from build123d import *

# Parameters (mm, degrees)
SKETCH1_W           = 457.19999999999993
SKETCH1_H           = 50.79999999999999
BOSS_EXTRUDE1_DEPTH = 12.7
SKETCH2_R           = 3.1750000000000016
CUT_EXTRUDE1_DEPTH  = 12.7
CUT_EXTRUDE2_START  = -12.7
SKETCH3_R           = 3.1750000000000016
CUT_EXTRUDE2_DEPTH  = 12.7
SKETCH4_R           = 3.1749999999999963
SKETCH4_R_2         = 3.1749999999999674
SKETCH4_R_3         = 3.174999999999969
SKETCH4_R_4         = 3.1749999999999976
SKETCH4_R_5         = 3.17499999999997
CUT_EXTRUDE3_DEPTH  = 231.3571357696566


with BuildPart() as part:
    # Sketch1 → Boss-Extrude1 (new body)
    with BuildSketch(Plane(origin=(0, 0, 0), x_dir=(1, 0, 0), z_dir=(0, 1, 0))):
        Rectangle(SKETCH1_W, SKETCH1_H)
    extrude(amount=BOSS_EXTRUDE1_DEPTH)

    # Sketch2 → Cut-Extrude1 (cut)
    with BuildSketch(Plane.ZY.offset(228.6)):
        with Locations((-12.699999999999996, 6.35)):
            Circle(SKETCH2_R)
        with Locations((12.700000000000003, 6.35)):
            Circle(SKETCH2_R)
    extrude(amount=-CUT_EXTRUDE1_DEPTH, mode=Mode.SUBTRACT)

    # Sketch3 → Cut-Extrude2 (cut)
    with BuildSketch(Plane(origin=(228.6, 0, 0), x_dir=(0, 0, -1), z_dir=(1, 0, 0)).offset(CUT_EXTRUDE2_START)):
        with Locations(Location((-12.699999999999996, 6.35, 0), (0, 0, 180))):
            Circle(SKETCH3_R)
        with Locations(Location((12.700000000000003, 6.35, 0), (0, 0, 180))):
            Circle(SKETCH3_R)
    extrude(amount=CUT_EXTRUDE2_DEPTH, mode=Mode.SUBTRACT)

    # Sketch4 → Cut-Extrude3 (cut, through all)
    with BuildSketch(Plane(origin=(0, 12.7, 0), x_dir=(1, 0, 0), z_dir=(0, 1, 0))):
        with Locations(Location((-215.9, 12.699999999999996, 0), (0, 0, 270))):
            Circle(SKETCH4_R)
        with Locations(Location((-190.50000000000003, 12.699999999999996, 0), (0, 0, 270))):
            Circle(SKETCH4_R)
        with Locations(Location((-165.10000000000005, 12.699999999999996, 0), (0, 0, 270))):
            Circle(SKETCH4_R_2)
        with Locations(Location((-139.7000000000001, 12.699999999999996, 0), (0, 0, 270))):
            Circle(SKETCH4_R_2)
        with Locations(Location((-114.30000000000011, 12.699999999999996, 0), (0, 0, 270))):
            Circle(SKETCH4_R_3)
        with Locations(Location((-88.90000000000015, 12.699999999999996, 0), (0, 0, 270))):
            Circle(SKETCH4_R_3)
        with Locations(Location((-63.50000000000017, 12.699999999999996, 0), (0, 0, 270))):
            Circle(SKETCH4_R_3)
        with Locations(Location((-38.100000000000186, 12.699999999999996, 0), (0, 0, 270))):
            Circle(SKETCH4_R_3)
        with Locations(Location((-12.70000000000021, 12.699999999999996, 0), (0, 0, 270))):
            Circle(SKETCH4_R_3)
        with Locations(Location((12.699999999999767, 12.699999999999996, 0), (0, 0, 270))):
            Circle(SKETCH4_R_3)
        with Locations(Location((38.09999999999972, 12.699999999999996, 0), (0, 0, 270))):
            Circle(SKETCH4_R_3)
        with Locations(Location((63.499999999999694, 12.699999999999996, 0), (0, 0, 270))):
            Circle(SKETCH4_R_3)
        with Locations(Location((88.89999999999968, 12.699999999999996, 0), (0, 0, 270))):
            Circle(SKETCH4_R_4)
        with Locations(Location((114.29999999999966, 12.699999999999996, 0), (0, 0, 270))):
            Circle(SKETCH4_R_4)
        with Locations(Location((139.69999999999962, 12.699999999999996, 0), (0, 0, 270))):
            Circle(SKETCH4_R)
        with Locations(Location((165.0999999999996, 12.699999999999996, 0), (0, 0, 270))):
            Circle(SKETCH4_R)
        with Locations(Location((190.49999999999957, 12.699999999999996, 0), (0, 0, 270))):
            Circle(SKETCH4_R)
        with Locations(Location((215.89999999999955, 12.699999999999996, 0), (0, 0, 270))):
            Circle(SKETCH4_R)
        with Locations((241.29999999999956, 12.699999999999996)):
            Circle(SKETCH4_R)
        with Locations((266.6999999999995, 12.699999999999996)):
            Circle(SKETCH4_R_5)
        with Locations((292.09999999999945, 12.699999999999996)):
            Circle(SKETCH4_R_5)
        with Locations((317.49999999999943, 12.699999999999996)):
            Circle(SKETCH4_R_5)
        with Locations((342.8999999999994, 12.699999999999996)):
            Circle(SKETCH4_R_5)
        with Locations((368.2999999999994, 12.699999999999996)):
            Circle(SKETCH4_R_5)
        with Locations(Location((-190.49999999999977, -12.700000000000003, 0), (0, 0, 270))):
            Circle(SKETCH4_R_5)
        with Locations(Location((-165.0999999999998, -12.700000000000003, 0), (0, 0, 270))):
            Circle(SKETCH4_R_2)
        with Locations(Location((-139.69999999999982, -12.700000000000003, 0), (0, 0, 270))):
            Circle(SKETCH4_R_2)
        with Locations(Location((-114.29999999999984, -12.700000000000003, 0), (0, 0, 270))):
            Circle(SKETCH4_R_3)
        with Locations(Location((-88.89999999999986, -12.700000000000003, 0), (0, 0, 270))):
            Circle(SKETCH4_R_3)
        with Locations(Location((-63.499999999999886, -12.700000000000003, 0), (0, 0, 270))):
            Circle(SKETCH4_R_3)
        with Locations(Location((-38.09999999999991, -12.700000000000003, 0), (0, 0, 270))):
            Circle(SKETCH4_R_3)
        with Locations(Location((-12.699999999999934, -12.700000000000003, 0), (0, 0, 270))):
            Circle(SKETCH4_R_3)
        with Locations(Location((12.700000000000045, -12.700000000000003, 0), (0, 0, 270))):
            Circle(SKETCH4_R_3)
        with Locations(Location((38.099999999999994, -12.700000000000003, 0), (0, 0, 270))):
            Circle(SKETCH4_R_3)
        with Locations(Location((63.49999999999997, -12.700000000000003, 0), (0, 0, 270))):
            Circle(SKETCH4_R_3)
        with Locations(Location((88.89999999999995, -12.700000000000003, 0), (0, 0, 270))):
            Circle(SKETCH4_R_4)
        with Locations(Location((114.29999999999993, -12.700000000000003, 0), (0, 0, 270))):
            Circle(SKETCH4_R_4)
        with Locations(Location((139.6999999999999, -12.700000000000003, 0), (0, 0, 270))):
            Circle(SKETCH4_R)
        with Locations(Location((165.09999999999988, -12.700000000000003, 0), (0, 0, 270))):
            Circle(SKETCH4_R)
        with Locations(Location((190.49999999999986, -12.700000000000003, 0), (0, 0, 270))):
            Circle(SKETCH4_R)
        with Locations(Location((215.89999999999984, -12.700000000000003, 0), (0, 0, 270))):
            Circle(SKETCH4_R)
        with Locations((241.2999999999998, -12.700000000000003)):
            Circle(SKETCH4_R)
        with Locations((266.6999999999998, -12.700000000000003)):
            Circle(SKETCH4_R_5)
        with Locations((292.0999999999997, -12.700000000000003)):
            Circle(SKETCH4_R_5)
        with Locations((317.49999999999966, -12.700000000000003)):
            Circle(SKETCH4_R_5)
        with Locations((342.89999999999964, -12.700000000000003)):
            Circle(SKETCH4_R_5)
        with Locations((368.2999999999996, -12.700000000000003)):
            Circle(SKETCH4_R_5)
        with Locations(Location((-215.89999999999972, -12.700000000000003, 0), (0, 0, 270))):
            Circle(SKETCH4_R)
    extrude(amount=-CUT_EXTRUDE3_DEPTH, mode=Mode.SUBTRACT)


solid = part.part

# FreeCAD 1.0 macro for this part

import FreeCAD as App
import Part
import Sketcher
Q = App.Units.Quantity


def add_polygon(sketch, points):
    """Adds a closed chain of lines whose ends are joined by coincident constraints."""
    first, n = sketch.GeometryCount, len(points)
    for a, b in zip(points, points[1:] + points[:1]):
        sketch.addGeometry(Part.LineSegment(App.Vector(*a, 0), App.Vector(*b, 0)), False)
    for i in range(n):
        sketch.addConstraint(Sketcher.Constraint("Coincident", first + i, 2, first + (i + 1) % n, 1))

doc = App.newDocument("Part")
body = doc.addObject("PartDesign::Body", "Body")

sketch1 = body.newObject("Sketcher::SketchObject", "Sketch")
sketch1.AttachmentSupport = (doc.getObject("XZ_Plane"), [""])
sketch1.MapMode = "FlatFace"
add_polygon(sketch1, [(-229, -25), (-229, 25), (229, 25), (229, -25)])
sketch1.addConstraint(Sketcher.Constraint("Vertical", 0))
sketch1.addConstraint(Sketcher.Constraint("Horizontal", 1))
sketch1.addConstraint(Sketcher.Constraint("Vertical", 2))
sketch1.addConstraint(Sketcher.Constraint("Horizontal", 3))
sketch1.addConstraint(Sketcher.Constraint("Symmetric", 0, 2, 2, 2, -1, 1))
sketch1.addConstraint(Sketcher.Constraint("DistanceX", 1, 1, 1, 2, Q("18 in")))
sketch1.addConstraint(Sketcher.Constraint("DistanceY", 0, 1, 0, 2, Q("2 in")))
pad1 = body.newObject("PartDesign::Pad", "Pad")
pad1.Profile = sketch1
pad1.Length = Q("0.5 in")
pad1.Reversed = True

sketch2 = body.newObject("Sketcher::SketchObject", "Sketch001")
sketch2.AttachmentSupport = (doc.getObject("YZ_Plane"), [""])
sketch2.MapMode = "FlatFace"
sketch2.AttachmentOffset = App.Placement(App.Vector(0, 0, -9 * 25.4), App.Rotation())
sketch2.addGeometry(Part.Circle(App.Vector(6.3, -12.7, 0), App.Vector(0, 0, 1), 3.2), False)
sketch2.addGeometry(Part.Circle(App.Vector(6.3, 12.7, 0), App.Vector(0, 0, 1), 3.2), False)
sketch2.addConstraint(Sketcher.Constraint("Equal", 0, 1))
sketch2.addConstraint(Sketcher.Constraint("Symmetric", 0, 3, 1, 3, -1))
sketch2.addConstraint(Sketcher.Constraint("Diameter", 0, Q("0.25 in")))
sketch2.addConstraint(Sketcher.Constraint("DistanceY", 0, 3, 1, 3, Q("1 in")))
sketch2.addConstraint(Sketcher.Constraint("DistanceX", -1, 1, 0, 3, Q("0.25 in")))
pocket1 = body.newObject("PartDesign::Pocket", "Pocket")
pocket1.Profile = sketch2
pocket1.Length = Q("0.5 in")
pocket1.Reversed = True

sketch3 = body.newObject("Sketcher::SketchObject", "Sketch002")
sketch3.AttachmentSupport = (doc.getObject("YZ_Plane"), [""])
sketch3.MapMode = "FlatFace"
sketch3.AttachmentOffset = App.Placement(App.Vector(0, 0, 8.5 * 25.4), App.Rotation())
sketch3.addGeometry(Part.Circle(App.Vector(6.3, 12.7, 0), App.Vector(0, 0, 1), 3.2), False)
sketch3.addGeometry(Part.Circle(App.Vector(6.3, -12.7, 0), App.Vector(0, 0, 1), 3.2), False)
sketch3.addConstraint(Sketcher.Constraint("Equal", 0, 1))
sketch3.addConstraint(Sketcher.Constraint("Symmetric", 0, 3, 1, 3, -1))
sketch3.addConstraint(Sketcher.Constraint("Diameter", 0, Q("0.25 in")))
sketch3.addConstraint(Sketcher.Constraint("DistanceY", 1, 3, 0, 3, Q("1 in")))
sketch3.addConstraint(Sketcher.Constraint("DistanceX", -1, 1, 0, 3, Q("0.25 in")))
pocket2 = body.newObject("PartDesign::Pocket", "Pocket001")
pocket2.Profile = sketch3
pocket2.Length = Q("0.5 in")
pocket2.Reversed = True

sketch4 = body.newObject("Sketcher::SketchObject", "Sketch003")
sketch4.AttachmentSupport = (doc.getObject("XZ_Plane"), [""])
sketch4.MapMode = "FlatFace"
sketch4.AttachmentOffset = App.Placement(App.Vector(0, 0, -0.5 * 25.4), App.Rotation())
sketch4.addGeometry(Part.Circle(App.Vector(-215.9, -12.7, 0), App.Vector(0, 0, 1), 3.2), False)
sketch4.addGeometry(Part.Circle(App.Vector(-190.5, -12.7, 0), App.Vector(0, 0, 1), 3.2), False)
sketch4.addGeometry(Part.Circle(App.Vector(-165.1, -12.7, 0), App.Vector(0, 0, 1), 3.2), False)
sketch4.addGeometry(Part.Circle(App.Vector(-139.7, -12.7, 0), App.Vector(0, 0, 1), 3.2), False)
sketch4.addGeometry(Part.Circle(App.Vector(-114.3, -12.7, 0), App.Vector(0, 0, 1), 3.2), False)
sketch4.addGeometry(Part.Circle(App.Vector(-88.9, -12.7, 0), App.Vector(0, 0, 1), 3.2), False)
sketch4.addGeometry(Part.Circle(App.Vector(-63.5, -12.7, 0), App.Vector(0, 0, 1), 3.2), False)
sketch4.addGeometry(Part.Circle(App.Vector(-38.1, -12.7, 0), App.Vector(0, 0, 1), 3.2), False)
sketch4.addGeometry(Part.Circle(App.Vector(-12.7, -12.7, 0), App.Vector(0, 0, 1), 3.2), False)
sketch4.addGeometry(Part.Circle(App.Vector(12.7, -12.7, 0), App.Vector(0, 0, 1), 3.2), False)
sketch4.addGeometry(Part.Circle(App.Vector(38.1, -12.7, 0), App.Vector(0, 0, 1), 3.2), False)
sketch4.addGeometry(Part.Circle(App.Vector(63.5, -12.7, 0), App.Vector(0, 0, 1), 3.2), False)
sketch4.addGeometry(Part.Circle(App.Vector(88.9, -12.7, 0), App.Vector(0, 0, 1), 3.2), False)
sketch4.addGeometry(Part.Circle(App.Vector(114.3, -12.7, 0), App.Vector(0, 0, 1), 3.2), False)
sketch4.addGeometry(Part.Circle(App.Vector(139.7, -12.7, 0), App.Vector(0, 0, 1), 3.2), False)
sketch4.addGeometry(Part.Circle(App.Vector(165.1, -12.7, 0), App.Vector(0, 0, 1), 3.2), False)
sketch4.addGeometry(Part.Circle(App.Vector(190.5, -12.7, 0), App.Vector(0, 0, 1), 3.2), False)
sketch4.addGeometry(Part.Circle(App.Vector(215.9, -12.7, 0), App.Vector(0, 0, 1), 3.2), False)
sketch4.addGeometry(Part.Circle(App.Vector(241.3, -12.7, 0), App.Vector(0, 0, 1), 3.2), False)
sketch4.addGeometry(Part.Circle(App.Vector(266.7, -12.7, 0), App.Vector(0, 0, 1), 3.2), False)
sketch4.addGeometry(Part.Circle(App.Vector(292.1, -12.7, 0), App.Vector(0, 0, 1), 3.2), False)
sketch4.addGeometry(Part.Circle(App.Vector(317.5, -12.7, 0), App.Vector(0, 0, 1), 3.2), False)
sketch4.addGeometry(Part.Circle(App.Vector(342.9, -12.7, 0), App.Vector(0, 0, 1), 3.2), False)
sketch4.addGeometry(Part.Circle(App.Vector(368.3, -12.7, 0), App.Vector(0, 0, 1), 3.2), False)
sketch4.addGeometry(Part.Circle(App.Vector(-190.5, 12.7, 0), App.Vector(0, 0, 1), 3.2), False)
sketch4.addGeometry(Part.Circle(App.Vector(-165.1, 12.7, 0), App.Vector(0, 0, 1), 3.2), False)
sketch4.addGeometry(Part.Circle(App.Vector(-139.7, 12.7, 0), App.Vector(0, 0, 1), 3.2), False)
sketch4.addGeometry(Part.Circle(App.Vector(-114.3, 12.7, 0), App.Vector(0, 0, 1), 3.2), False)
sketch4.addGeometry(Part.Circle(App.Vector(-88.9, 12.7, 0), App.Vector(0, 0, 1), 3.2), False)
sketch4.addGeometry(Part.Circle(App.Vector(-63.5, 12.7, 0), App.Vector(0, 0, 1), 3.2), False)
sketch4.addGeometry(Part.Circle(App.Vector(-38.1, 12.7, 0), App.Vector(0, 0, 1), 3.2), False)
sketch4.addGeometry(Part.Circle(App.Vector(-12.7, 12.7, 0), App.Vector(0, 0, 1), 3.2), False)
sketch4.addGeometry(Part.Circle(App.Vector(12.7, 12.7, 0), App.Vector(0, 0, 1), 3.2), False)
sketch4.addGeometry(Part.Circle(App.Vector(38.1, 12.7, 0), App.Vector(0, 0, 1), 3.2), False)
sketch4.addGeometry(Part.Circle(App.Vector(63.5, 12.7, 0), App.Vector(0, 0, 1), 3.2), False)
sketch4.addGeometry(Part.Circle(App.Vector(88.9, 12.7, 0), App.Vector(0, 0, 1), 3.2), False)
sketch4.addGeometry(Part.Circle(App.Vector(114.3, 12.7, 0), App.Vector(0, 0, 1), 3.2), False)
sketch4.addGeometry(Part.Circle(App.Vector(139.7, 12.7, 0), App.Vector(0, 0, 1), 3.2), False)
sketch4.addGeometry(Part.Circle(App.Vector(165.1, 12.7, 0), App.Vector(0, 0, 1), 3.2), False)
sketch4.addGeometry(Part.Circle(App.Vector(190.5, 12.7, 0), App.Vector(0, 0, 1), 3.2), False)
sketch4.addGeometry(Part.Circle(App.Vector(215.9, 12.7, 0), App.Vector(0, 0, 1), 3.2), False)
sketch4.addGeometry(Part.Circle(App.Vector(241.3, 12.7, 0), App.Vector(0, 0, 1), 3.2), False)
sketch4.addGeometry(Part.Circle(App.Vector(266.7, 12.7, 0), App.Vector(0, 0, 1), 3.2), False)
sketch4.addGeometry(Part.Circle(App.Vector(292.1, 12.7, 0), App.Vector(0, 0, 1), 3.2), False)
sketch4.addGeometry(Part.Circle(App.Vector(317.5, 12.7, 0), App.Vector(0, 0, 1), 3.2), False)
sketch4.addGeometry(Part.Circle(App.Vector(342.9, 12.7, 0), App.Vector(0, 0, 1), 3.2), False)
sketch4.addGeometry(Part.Circle(App.Vector(368.3, 12.7, 0), App.Vector(0, 0, 1), 3.2), False)
sketch4.addGeometry(Part.Circle(App.Vector(-215.9, 12.7, 0), App.Vector(0, 0, 1), 3.2), False)
sketch4.addConstraint(Sketcher.Constraint("Equal", 0, 1))
sketch4.addConstraint(Sketcher.Constraint("Equal", 1, 2))
sketch4.addConstraint(Sketcher.Constraint("Equal", 2, 3))
sketch4.addConstraint(Sketcher.Constraint("Equal", 3, 4))
sketch4.addConstraint(Sketcher.Constraint("Equal", 4, 5))
sketch4.addConstraint(Sketcher.Constraint("Equal", 5, 6))
sketch4.addConstraint(Sketcher.Constraint("Equal", 6, 7))
sketch4.addConstraint(Sketcher.Constraint("Equal", 7, 8))
sketch4.addConstraint(Sketcher.Constraint("Equal", 8, 9))
sketch4.addConstraint(Sketcher.Constraint("Equal", 9, 10))
sketch4.addConstraint(Sketcher.Constraint("Equal", 10, 11))
sketch4.addConstraint(Sketcher.Constraint("Equal", 11, 12))
sketch4.addConstraint(Sketcher.Constraint("Equal", 12, 13))
sketch4.addConstraint(Sketcher.Constraint("Equal", 13, 14))
sketch4.addConstraint(Sketcher.Constraint("Equal", 14, 15))
sketch4.addConstraint(Sketcher.Constraint("Equal", 15, 16))
sketch4.addConstraint(Sketcher.Constraint("Equal", 16, 17))
sketch4.addConstraint(Sketcher.Constraint("Equal", 17, 18))
sketch4.addConstraint(Sketcher.Constraint("Equal", 18, 19))
sketch4.addConstraint(Sketcher.Constraint("Equal", 19, 20))
sketch4.addConstraint(Sketcher.Constraint("Equal", 20, 21))
sketch4.addConstraint(Sketcher.Constraint("Equal", 21, 22))
sketch4.addConstraint(Sketcher.Constraint("Equal", 22, 23))
sketch4.addConstraint(Sketcher.Constraint("Equal", 23, 24))
sketch4.addConstraint(Sketcher.Constraint("Equal", 24, 25))
sketch4.addConstraint(Sketcher.Constraint("Equal", 25, 26))
sketch4.addConstraint(Sketcher.Constraint("Equal", 26, 27))
sketch4.addConstraint(Sketcher.Constraint("Equal", 27, 28))
sketch4.addConstraint(Sketcher.Constraint("Equal", 28, 29))
sketch4.addConstraint(Sketcher.Constraint("Equal", 29, 30))
sketch4.addConstraint(Sketcher.Constraint("Equal", 30, 31))
sketch4.addConstraint(Sketcher.Constraint("Equal", 31, 32))
sketch4.addConstraint(Sketcher.Constraint("Equal", 32, 33))
sketch4.addConstraint(Sketcher.Constraint("Equal", 33, 34))
sketch4.addConstraint(Sketcher.Constraint("Equal", 34, 35))
sketch4.addConstraint(Sketcher.Constraint("Equal", 35, 36))
sketch4.addConstraint(Sketcher.Constraint("Equal", 36, 37))
sketch4.addConstraint(Sketcher.Constraint("Equal", 37, 38))
sketch4.addConstraint(Sketcher.Constraint("Equal", 38, 39))
sketch4.addConstraint(Sketcher.Constraint("Equal", 39, 40))
sketch4.addConstraint(Sketcher.Constraint("Equal", 40, 41))
sketch4.addConstraint(Sketcher.Constraint("Equal", 41, 42))
sketch4.addConstraint(Sketcher.Constraint("Equal", 42, 43))
sketch4.addConstraint(Sketcher.Constraint("Equal", 43, 44))
sketch4.addConstraint(Sketcher.Constraint("Equal", 44, 45))
sketch4.addConstraint(Sketcher.Constraint("Equal", 45, 46))
sketch4.addConstraint(Sketcher.Constraint("Equal", 46, 47))
sketch4.addConstraint(Sketcher.Constraint("Symmetric", 16, 3, 24, 3, -1, 1))
sketch4.addConstraint(Sketcher.Constraint("Symmetric", 15, 3, 25, 3, -1, 1))
sketch4.addConstraint(Sketcher.Constraint("Symmetric", 14, 3, 26, 3, -1, 1))
sketch4.addConstraint(Sketcher.Constraint("Symmetric", 13, 3, 27, 3, -1, 1))
sketch4.addConstraint(Sketcher.Constraint("Symmetric", 12, 3, 28, 3, -1, 1))
sketch4.addConstraint(Sketcher.Constraint("Symmetric", 11, 3, 29, 3, -1, 1))
sketch4.addConstraint(Sketcher.Constraint("Symmetric", 10, 3, 30, 3, -1, 1))
sketch4.addConstraint(Sketcher.Constraint("Symmetric", 9, 3, 31, 3, -1, 1))
sketch4.addConstraint(Sketcher.Constraint("Symmetric", 8, 3, 32, 3, -1, 1))
sketch4.addConstraint(Sketcher.Constraint("Symmetric", 7, 3, 33, 3, -1, 1))
sketch4.addConstraint(Sketcher.Constraint("Symmetric", 6, 3, 34, 3, -1, 1))
sketch4.addConstraint(Sketcher.Constraint("Symmetric", 5, 3, 35, 3, -1, 1))
sketch4.addConstraint(Sketcher.Constraint("Symmetric", 4, 3, 36, 3, -1, 1))
sketch4.addConstraint(Sketcher.Constraint("Symmetric", 3, 3, 37, 3, -1, 1))
sketch4.addConstraint(Sketcher.Constraint("Symmetric", 2, 3, 38, 3, -1, 1))
sketch4.addConstraint(Sketcher.Constraint("Symmetric", 1, 3, 39, 3, -1, 1))
sketch4.addConstraint(Sketcher.Constraint("Symmetric", 0, 3, 40, 3, -1, 1))
sketch4.addConstraint(Sketcher.Constraint("Symmetric", 17, 3, 47, 3, -1, 1))
sketch4.addConstraint(Sketcher.Constraint("Symmetric", 8, 3, 9, 3, -2))
sketch4.addConstraint(Sketcher.Constraint("Symmetric", 7, 3, 10, 3, -2))
sketch4.addConstraint(Sketcher.Constraint("Symmetric", 6, 3, 11, 3, -2))
sketch4.addConstraint(Sketcher.Constraint("Symmetric", 5, 3, 12, 3, -2))
sketch4.addConstraint(Sketcher.Constraint("Symmetric", 4, 3, 13, 3, -2))
sketch4.addConstraint(Sketcher.Constraint("Symmetric", 3, 3, 14, 3, -2))
sketch4.addConstraint(Sketcher.Constraint("Symmetric", 2, 3, 15, 3, -2))
sketch4.addConstraint(Sketcher.Constraint("Symmetric", 1, 3, 16, 3, -2))
sketch4.addConstraint(Sketcher.Constraint("Symmetric", 0, 3, 17, 3, -2))
sketch4.addConstraint(Sketcher.Constraint("Symmetric", 18, 3, 41, 3, -1))
sketch4.addConstraint(Sketcher.Constraint("Symmetric", 19, 3, 42, 3, -1))
sketch4.addConstraint(Sketcher.Constraint("Symmetric", 20, 3, 43, 3, -1))
sketch4.addConstraint(Sketcher.Constraint("Symmetric", 21, 3, 44, 3, -1))
sketch4.addConstraint(Sketcher.Constraint("Symmetric", 22, 3, 45, 3, -1))
sketch4.addConstraint(Sketcher.Constraint("Symmetric", 23, 3, 46, 3, -1))
sketch4.addConstraint(Sketcher.Constraint("Horizontal", 0, 3, 1, 3))
sketch4.addConstraint(Sketcher.Constraint("Horizontal", 1, 3, 2, 3))
sketch4.addConstraint(Sketcher.Constraint("Horizontal", 2, 3, 3, 3))
sketch4.addConstraint(Sketcher.Constraint("Horizontal", 3, 3, 4, 3))
sketch4.addConstraint(Sketcher.Constraint("Horizontal", 4, 3, 5, 3))
sketch4.addConstraint(Sketcher.Constraint("Horizontal", 5, 3, 6, 3))
sketch4.addConstraint(Sketcher.Constraint("Horizontal", 6, 3, 7, 3))
sketch4.addConstraint(Sketcher.Constraint("Horizontal", 7, 3, 8, 3))
sketch4.addConstraint(Sketcher.Constraint("Horizontal", 17, 3, 18, 3))
sketch4.addConstraint(Sketcher.Constraint("Horizontal", 18, 3, 19, 3))
sketch4.addConstraint(Sketcher.Constraint("Horizontal", 19, 3, 20, 3))
sketch4.addConstraint(Sketcher.Constraint("Horizontal", 20, 3, 21, 3))
sketch4.addConstraint(Sketcher.Constraint("Horizontal", 21, 3, 22, 3))
sketch4.addConstraint(Sketcher.Constraint("Horizontal", 22, 3, 23, 3))
sketch4.addConstraint(Sketcher.Constraint("Diameter", 0, Q("0.25 in")))
sketch4.addConstraint(Sketcher.Constraint("DistanceX", 0, 3, 1, 3, Q("1 in")))
sketch4.addConstraint(Sketcher.Constraint("DistanceX", 1, 3, 2, 3, Q("1 in")))
sketch4.addConstraint(Sketcher.Constraint("DistanceX", 2, 3, 3, 3, Q("1 in")))
sketch4.addConstraint(Sketcher.Constraint("DistanceX", 3, 3, 4, 3, Q("1 in")))
sketch4.addConstraint(Sketcher.Constraint("DistanceX", 4, 3, 5, 3, Q("1 in")))
sketch4.addConstraint(Sketcher.Constraint("DistanceX", 5, 3, 6, 3, Q("1 in")))
sketch4.addConstraint(Sketcher.Constraint("DistanceX", 6, 3, 7, 3, Q("1 in")))
sketch4.addConstraint(Sketcher.Constraint("DistanceX", 7, 3, 8, 3, Q("1 in")))
sketch4.addConstraint(Sketcher.Constraint("DistanceX", 8, 3, 9, 3, Q("1 in")))
sketch4.addConstraint(Sketcher.Constraint("DistanceX", 17, 3, 18, 3, Q("1 in")))
sketch4.addConstraint(Sketcher.Constraint("DistanceX", 18, 3, 19, 3, Q("1 in")))
sketch4.addConstraint(Sketcher.Constraint("DistanceX", 19, 3, 20, 3, Q("1 in")))
sketch4.addConstraint(Sketcher.Constraint("DistanceX", 20, 3, 21, 3, Q("1 in")))
sketch4.addConstraint(Sketcher.Constraint("DistanceX", 21, 3, 22, 3, Q("1 in")))
sketch4.addConstraint(Sketcher.Constraint("DistanceX", 22, 3, 23, 3, Q("1 in")))
sketch4.addConstraint(Sketcher.Constraint("DistanceY", 1, 3, 24, 3, Q("1 in")))
pocket3 = body.newObject("PartDesign::Pocket", "Pocket002")
pocket3.Profile = sketch4
pocket3.Type = "ThroughAll"
pocket3.Reversed = True

doc.recompute()
